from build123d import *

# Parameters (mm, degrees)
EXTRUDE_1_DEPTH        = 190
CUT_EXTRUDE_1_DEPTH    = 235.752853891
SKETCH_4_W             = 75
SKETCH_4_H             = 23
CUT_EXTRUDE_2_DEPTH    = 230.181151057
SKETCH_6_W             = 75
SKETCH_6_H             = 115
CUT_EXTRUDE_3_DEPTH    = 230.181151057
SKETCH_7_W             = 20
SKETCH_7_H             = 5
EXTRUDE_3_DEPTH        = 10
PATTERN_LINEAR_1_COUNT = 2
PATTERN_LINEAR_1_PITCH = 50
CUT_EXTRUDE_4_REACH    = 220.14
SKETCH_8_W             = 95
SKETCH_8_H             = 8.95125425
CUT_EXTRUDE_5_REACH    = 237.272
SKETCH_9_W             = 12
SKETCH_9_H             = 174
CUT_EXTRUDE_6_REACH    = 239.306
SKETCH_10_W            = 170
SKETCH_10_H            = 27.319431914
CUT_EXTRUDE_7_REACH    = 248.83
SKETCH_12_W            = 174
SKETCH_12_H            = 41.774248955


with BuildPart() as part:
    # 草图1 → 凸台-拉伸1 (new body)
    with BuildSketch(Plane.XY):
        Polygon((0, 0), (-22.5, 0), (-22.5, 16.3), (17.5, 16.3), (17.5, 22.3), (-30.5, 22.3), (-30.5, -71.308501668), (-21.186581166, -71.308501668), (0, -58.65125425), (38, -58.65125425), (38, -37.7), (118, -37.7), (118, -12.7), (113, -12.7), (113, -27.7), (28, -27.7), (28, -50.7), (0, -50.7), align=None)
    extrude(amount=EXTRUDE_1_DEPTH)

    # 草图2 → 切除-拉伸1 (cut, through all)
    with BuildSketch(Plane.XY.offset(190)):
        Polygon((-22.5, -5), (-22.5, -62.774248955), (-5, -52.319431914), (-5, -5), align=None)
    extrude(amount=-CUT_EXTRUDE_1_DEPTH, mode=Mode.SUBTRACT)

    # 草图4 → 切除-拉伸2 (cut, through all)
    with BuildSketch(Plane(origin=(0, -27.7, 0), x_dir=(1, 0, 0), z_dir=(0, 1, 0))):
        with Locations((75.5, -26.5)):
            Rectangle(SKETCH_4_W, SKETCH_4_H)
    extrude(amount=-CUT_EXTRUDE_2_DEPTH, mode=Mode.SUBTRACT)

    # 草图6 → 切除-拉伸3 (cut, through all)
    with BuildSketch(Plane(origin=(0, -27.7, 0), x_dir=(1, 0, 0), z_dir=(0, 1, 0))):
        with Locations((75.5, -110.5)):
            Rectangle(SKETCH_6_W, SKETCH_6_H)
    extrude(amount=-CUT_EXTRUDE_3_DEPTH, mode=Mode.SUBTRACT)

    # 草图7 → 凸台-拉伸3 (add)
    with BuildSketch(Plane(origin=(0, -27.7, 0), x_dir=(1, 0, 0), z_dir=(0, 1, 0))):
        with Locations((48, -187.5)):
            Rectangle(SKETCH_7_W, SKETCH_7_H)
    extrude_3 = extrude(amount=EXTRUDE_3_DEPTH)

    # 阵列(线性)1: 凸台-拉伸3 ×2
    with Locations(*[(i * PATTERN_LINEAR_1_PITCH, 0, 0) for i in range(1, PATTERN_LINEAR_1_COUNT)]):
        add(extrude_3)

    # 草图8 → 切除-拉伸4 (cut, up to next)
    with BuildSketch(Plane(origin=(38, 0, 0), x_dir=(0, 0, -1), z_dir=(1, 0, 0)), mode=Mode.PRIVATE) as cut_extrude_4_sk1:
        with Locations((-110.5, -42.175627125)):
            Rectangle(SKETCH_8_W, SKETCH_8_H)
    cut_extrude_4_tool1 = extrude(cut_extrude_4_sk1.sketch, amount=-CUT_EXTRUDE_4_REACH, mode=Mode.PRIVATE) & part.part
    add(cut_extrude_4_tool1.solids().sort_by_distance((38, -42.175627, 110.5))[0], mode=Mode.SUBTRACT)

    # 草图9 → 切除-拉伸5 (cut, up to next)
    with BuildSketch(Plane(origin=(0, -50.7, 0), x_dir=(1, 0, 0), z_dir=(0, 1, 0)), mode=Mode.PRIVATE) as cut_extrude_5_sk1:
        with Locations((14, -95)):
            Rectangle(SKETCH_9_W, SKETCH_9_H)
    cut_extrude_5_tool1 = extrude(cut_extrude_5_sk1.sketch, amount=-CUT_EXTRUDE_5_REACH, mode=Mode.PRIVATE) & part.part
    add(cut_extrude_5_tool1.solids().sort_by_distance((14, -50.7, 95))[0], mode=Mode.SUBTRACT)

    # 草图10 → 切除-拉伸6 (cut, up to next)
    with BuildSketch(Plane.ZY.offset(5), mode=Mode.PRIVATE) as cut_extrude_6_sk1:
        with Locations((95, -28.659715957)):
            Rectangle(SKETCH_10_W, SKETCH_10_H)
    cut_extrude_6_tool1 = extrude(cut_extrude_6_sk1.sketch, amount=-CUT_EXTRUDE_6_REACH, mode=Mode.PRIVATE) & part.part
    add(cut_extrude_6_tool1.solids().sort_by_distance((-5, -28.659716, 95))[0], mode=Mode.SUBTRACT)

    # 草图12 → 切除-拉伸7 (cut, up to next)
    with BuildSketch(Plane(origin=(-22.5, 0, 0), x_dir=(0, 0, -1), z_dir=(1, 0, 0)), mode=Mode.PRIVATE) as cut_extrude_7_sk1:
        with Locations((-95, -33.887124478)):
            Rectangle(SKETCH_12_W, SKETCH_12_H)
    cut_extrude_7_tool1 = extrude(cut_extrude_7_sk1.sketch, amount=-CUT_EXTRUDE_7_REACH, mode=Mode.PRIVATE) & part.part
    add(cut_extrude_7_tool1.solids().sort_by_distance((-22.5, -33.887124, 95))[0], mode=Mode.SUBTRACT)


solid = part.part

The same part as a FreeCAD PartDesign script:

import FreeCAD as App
import Part
import Sketcher
Q = App.Units.Quantity

doc = App.newDocument("Part")
body = doc.addObject("PartDesign::Body", "Body")

# Sketch on XY plane
sketch1 = body.newObject("Sketcher::SketchObject", "Sketch")
sketch1.AttachmentSupport = (doc.getObject("XY_Plane"), [""])
sketch1.MapMode = "FlatFace"
sketch1.addGeometry(Part.LineSegment(App.Vector(0, 0, 0), App.Vector(-22, 0, 0)), False)
sketch1.addGeometry(Part.LineSegment(App.Vector(-22, 0, 0), App.Vector(-22, 16, 0)), False)
sketch1.addGeometry(Part.LineSegment(App.Vector(-22, 16, 0), App.Vector(18, 16, 0)), False)
sketch1.addGeometry(Part.LineSegment(App.Vector(18, 16, 0), App.Vector(18, 22, 0)), False)
sketch1.addGeometry(Part.LineSegment(App.Vector(18, 22, 0), App.Vector(-30, 22, 0)), False)
sketch1.addGeometry(Part.LineSegment(App.Vector(-30, 22, 0), App.Vector(-30, -71, 0)), False)
sketch1.addGeometry(Part.LineSegment(App.Vector(-30, -71, 0), App.Vector(-21, -71, 0)), False)
sketch1.addGeometry(Part.LineSegment(App.Vector(-21, -71, 0), App.Vector(0, -59, 0)), False)
sketch1.addGeometry(Part.LineSegment(App.Vector(0, -59, 0), App.Vector(38, -59, 0)), False)
sketch1.addGeometry(Part.LineSegment(App.Vector(38, -59, 0), App.Vector(38, -38, 0)), False)
sketch1.addGeometry(Part.LineSegment(App.Vector(38, -38, 0), App.Vector(118, -38, 0)), False)
sketch1.addGeometry(Part.LineSegment(App.Vector(118, -38, 0), App.Vector(118, -13, 0)), False)
sketch1.addGeometry(Part.LineSegment(App.Vector(118, -13, 0), App.Vector(113, -13, 0)), False)
sketch1.addGeometry(Part.LineSegment(App.Vector(113, -13, 0), App.Vector(113, -28, 0)), False)
sketch1.addGeometry(Part.LineSegment(App.Vector(113, -28, 0), App.Vector(28, -28, 0)), False)
sketch1.addGeometry(Part.LineSegment(App.Vector(28, -28, 0), App.Vector(28, -51, 0)), False)
sketch1.addGeometry(Part.LineSegment(App.Vector(28, -51, 0), App.Vector(0, -51, 0)), False)
sketch1.addGeometry(Part.LineSegment(App.Vector(0, -51, 0), App.Vector(0, 0, 0)), False)
sketch1.addConstraint(Sketcher.Constraint("Coincident", 0, 2, 1, 1))
sketch1.addConstraint(Sketcher.Constraint("Coincident", 1, 2, 2, 1))
sketch1.addConstraint(Sketcher.Constraint("Coincident", 2, 2, 3, 1))
sketch1.addConstraint(Sketcher.Constraint("Coincident", 3, 2, 4, 1))
sketch1.addConstraint(Sketcher.Constraint("Coincident", 4, 2, 5, 1))
sketch1.addConstraint(Sketcher.Constraint("Coincident", 5, 2, 6, 1))
sketch1.addConstraint(Sketcher.Constraint("Coincident", 6, 2, 7, 1))
sketch1.addConstraint(Sketcher.Constraint("Coincident", 7, 2, 8, 1))
sketch1.addConstraint(Sketcher.Constraint("Coincident", 8, 2, 9, 1))
sketch1.addConstraint(Sketcher.Constraint("Coincident", 9, 2, 10, 1))
sketch1.addConstraint(Sketcher.Constraint("Coincident", 10, 2, 11, 1))
sketch1.addConstraint(Sketcher.Constraint("Coincident", 11, 2, 12, 1))
sketch1.addConstraint(Sketcher.Constraint("Coincident", 12, 2, 13, 1))
sketch1.addConstraint(Sketcher.Constraint("Coincident", 13, 2, 14, 1))
sketch1.addConstraint(Sketcher.Constraint("Coincident", 14, 2, 15, 1))
sketch1.addConstraint(Sketcher.Constraint("Coincident", 15, 2, 16, 1))
sketch1.addConstraint(Sketcher.Constraint("Coincident", 16, 2, 17, 1))
sketch1.addConstraint(Sketcher.Constraint("Coincident", 17, 2, 0, 1))
sketch1.addConstraint(Sketcher.Constraint("Horizontal", 0))
sketch1.addConstraint(Sketcher.Constraint("Vertical", 1))
sketch1.addConstraint(Sketcher.Constraint("Horizontal", 2))
sketch1.addConstraint(Sketcher.Constraint("Vertical", 3))
sketch1.addConstraint(Sketcher.Constraint("Horizontal", 4))
sketch1.addConstraint(Sketcher.Constraint("Vertical", 5))
sketch1.addConstraint(Sketcher.Constraint("Horizontal", 6))
sketch1.addConstraint(Sketcher.Constraint("Horizontal", 8))
sketch1.addConstraint(Sketcher.Constraint("Vertical", 9))
sketch1.addConstraint(Sketcher.Constraint("Horizontal", 10))
sketch1.addConstraint(Sketcher.Constraint("Vertical", 11))
sketch1.addConstraint(Sketcher.Constraint("Horizontal", 12))
sketch1.addConstraint(Sketcher.Constraint("Vertical", 13))
sketch1.addConstraint(Sketcher.Constraint("Horizontal", 14))
sketch1.addConstraint(Sketcher.Constraint("Vertical", 15))
sketch1.addConstraint(Sketcher.Constraint("Horizontal", 16))
sketch1.addConstraint(Sketcher.Constraint("Vertical", 17))
sketch1.addConstraint(Sketcher.Constraint("Coincident", 17, 2, -1, 1))
sketch1.addConstraint(Sketcher.Constraint("PointOnObject", 7, 2, -2))
sketch1.addConstraint(Sketcher.Constraint("DistanceX", 2, 1, 2, 2, Q("40 mm")))
sketch1.addConstraint(Sketcher.Constraint("DistanceX", 4, 2, 4, 1, Q("48 mm")))
sketch1.addConstraint(Sketcher.Constraint("DistanceX", 8, 1, 8, 2, Q("38 mm")))
sketch1.addConstraint(Sketcher.Constraint("DistanceX", 10, 1, 10, 2, Q("80 mm")))
sketch1.addConstraint(Sketcher.Constraint("DistanceX", 12, 2, 12, 1, Q("5 mm")))
sketch1.addConstraint(Sketcher.Constraint("DistanceX", 14, 2, 14, 1, Q("85 mm")))
sketch1.addConstraint(Sketcher.Constraint("DistanceY", 3, 1, 3, 2, Q("6 mm")))
sketch1.addConstraint(Sketcher.Constraint("DistanceY", 11, 1, 11, 2, Q("25 mm")))
sketch1.addConstraint(Sketcher.Constraint("DistanceY", 13, 2, 13, 1, Q("15 mm")))
sketch1.addConstraint(Sketcher.Constraint("DistanceY", 15, 2, 15, 1, Q("23 mm")))
sketch1.addConstraint(Sketcher.Constraint("DistanceX", 0, 2, 0, 1, Q("22.5 mm")))
sketch1.addConstraint(Sketcher.Constraint("DistanceY", 1, 1, 1, 2, Q("16.3 mm")))
sketch1.addConstraint(Sketcher.Constraint("DistanceY", 17, 1, 17, 2, Q("50.7 mm")))
sketch1.addConstraint(Sketcher.Constraint("DistanceY", 5, 2, 5, 1, Q("93.608502 mm")))
sketch1.addConstraint(Sketcher.Constraint("DistanceX", 6, 1, 6, 2, Q("9.313419 mm")))
sketch1.addConstraint(Sketcher.Constraint("Distance", 7, Q("24.679488 mm")))
pad1 = body.newObject("PartDesign::Pad", "Pad")
pad1.Profile = sketch1
pad1.Length = 190

# Sketch on XY plane
sketch2 = body.newObject("Sketcher::SketchObject", "Sketch001")
sketch2.AttachmentSupport = (doc.getObject("XY_Plane"), [""])
sketch2.MapMode = "FlatFace"
sketch2.AttachmentOffset = App.Placement(App.Vector(0, 0, 190), App.Rotation())
sketch2.addGeometry(Part.LineSegment(App.Vector(-22, -5, 0), App.Vector(-22, -63, 0)), False)
sketch2.addGeometry(Part.LineSegment(App.Vector(-22, -63, 0), App.Vector(-5, -52, 0)), False)
sketch2.addGeometry(Part.LineSegment(App.Vector(-5, -52, 0), App.Vector(-5, -5, 0)), False)
sketch2.addGeometry(Part.LineSegment(App.Vector(-5, -5, 0), App.Vector(-22, -5, 0)), False)
sketch2.addConstraint(Sketcher.Constraint("Coincident", 0, 2, 1, 1))
sketch2.addConstraint(Sketcher.Constraint("Coincident", 1, 2, 2, 1))
sketch2.addConstraint(Sketcher.Constraint("Coincident", 2, 2, 3, 1))
sketch2.addConstraint(Sketcher.Constraint("Coincident", 3, 2, 0, 1))
sketch2.addConstraint(Sketcher.Constraint("Vertical", 0))
sketch2.addConstraint(Sketcher.Constraint("Vertical", 2))
sketch2.addConstraint(Sketcher.Constraint("Horizontal", 3))
sketch2.addConstraint(Sketcher.Constraint("DistanceX", 3, 2, 3, 1, Q("17.5 mm")))
sketch2.addConstraint(Sketcher.Constraint("DistanceX", 1, 2, -1, 1, Q("5 mm")))
sketch2.addConstraint(Sketcher.Constraint("DistanceY", 2, 2, -1, 1, Q("5 mm")))
sketch2.addConstraint(Sketcher.Constraint("DistanceY", 0, 2, 0, 1, Q("57.774249 mm")))
sketch2.addConstraint(Sketcher.Constraint("DistanceY", 2, 1, 2, 2, Q("47.319432 mm")))
pocket1 = body.newObject("PartDesign::Pocket", "Pocket")
pocket1.Profile = sketch2
pocket1.Type = "ThroughAll"

# Sketch on XZ plane
sketch3 = body.newObject("Sketcher::SketchObject", "Sketch002")
sketch3.AttachmentSupport = (doc.getObject("XZ_Plane"), [""])
sketch3.MapMode = "FlatFace"
sketch3.AttachmentOffset = App.Placement(App.Vector(0, 0, 27.7), App.Rotation())
sketch3.addGeometry(Part.LineSegment(App.Vector(38, 15, 0), App.Vector(38, 38, 0)), False)
sketch3.addGeometry(Part.LineSegment(App.Vector(38, 38, 0), App.Vector(113, 38, 0)), False)
sketch3.addGeometry(Part.LineSegment(App.Vector(113, 38, 0), App.Vector(113, 15, 0)), False)
sketch3.addGeometry(Part.LineSegment(App.Vector(113, 15, 0), App.Vector(38, 15, 0)), False)
sketch3.addConstraint(Sketcher.Constraint("Coincident", 0, 2, 1, 1))
sketch3.addConstraint(Sketcher.Constraint("Coincident", 1, 2, 2, 1))
sketch3.addConstraint(Sketcher.Constraint("Coincident", 2, 2, 3, 1))
sketch3.addConstraint(Sketcher.Constraint("Coincident", 3, 2, 0, 1))
sketch3.addConstraint(Sketcher.Constraint("Vertical", 0))
sketch3.addConstraint(Sketcher.Constraint("Horizontal", 1))
sketch3.addConstraint(Sketcher.Constraint("Vertical", 2))
sketch3.addConstraint(Sketcher.Constraint("Horizontal", 3))
sketch3.addConstraint(Sketcher.Constraint("DistanceX", 1, 1, 1, 2, Q("75 mm")))
sketch3.addConstraint(Sketcher.Constraint("DistanceY", 0, 1, 0, 2, Q("23 mm")))
sketch3.addConstraint(Sketcher.Constraint("DistanceX", -1, 1, 0, 2, Q("38 mm")))
sketch3.addConstraint(Sketcher.Constraint("DistanceY", -1, 1, 0, 2, Q("38 mm")))
pocket2 = body.newObject("PartDesign::Pocket", "Pocket001")
pocket2.Profile = sketch3
pocket2.Type = "ThroughAll"
pocket2.Reversed = True

# Sketch on XZ plane
sketch4 = body.newObject("Sketcher::SketchObject", "Sketch003")
sketch4.AttachmentSupport = (doc.getObject("XZ_Plane"), [""])
sketch4.MapMode = "FlatFace"
sketch4.AttachmentOffset = App.Placement(App.Vector(0, 0, 27.7), App.Rotation())
sketch4.addGeometry(Part.LineSegment(App.Vector(38, 53, 0), App.Vector(38, 168, 0)), False)
sketch4.addGeometry(Part.LineSegment(App.Vector(38, 168, 0), App.Vector(113, 168, 0)), False)
sketch4.addGeometry(Part.LineSegment(App.Vector(113, 168, 0), App.Vector(113, 53, 0)), False)
sketch4.addGeometry(Part.LineSegment(App.Vector(113, 53, 0), App.Vector(38, 53, 0)), False)
sketch4.addConstraint(Sketcher.Constraint("Coincident", 0, 2, 1, 1))
sketch4.addConstraint(Sketcher.Constraint("Coincident", 1, 2, 2, 1))
sketch4.addConstraint(Sketcher.Constraint("Coincident", 2, 2, 3, 1))
sketch4.addConstraint(Sketcher.Constraint("Coincident", 3, 2, 0, 1))
sketch4.addConstraint(Sketcher.Constraint("Vertical", 0))
sketch4.addConstraint(Sketcher.Constraint("Horizontal", 1))
sketch4.addConstraint(Sketcher.Constraint("Vertical", 2))
sketch4.addConstraint(Sketcher.Constraint("Horizontal", 3))
sketch4.addConstraint(Sketcher.Constraint("DistanceX", 1, 1, 1, 2, Q("75 mm")))
sketch4.addConstraint(Sketcher.Constraint("DistanceY", 0, 1, 0, 2, Q("115 mm")))
sketch4.addConstraint(Sketcher.Constraint("DistanceX", -1, 1, 0, 2, Q("38 mm")))
sketch4.addConstraint(Sketcher.Constraint("DistanceY", -1, 1, 0, 2, Q("168 mm")))
pocket3 = body.newObject("PartDesign::Pocket", "Pocket002")
pocket3.Profile = sketch4
pocket3.Type = "ThroughAll"
pocket3.Reversed = True

# Sketch on XZ plane
sketch5 = body.newObject("Sketcher::SketchObject", "Sketch004")
sketch5.AttachmentSupport = (doc.getObject("XZ_Plane"), [""])
sketch5.MapMode = "FlatFace"
sketch5.AttachmentOffset = App.Placement(App.Vector(0, 0, 27.7), App.Rotation())
sketch5.addGeometry(Part.LineSegment(App.Vector(38, 185, 0), App.Vector(38, 190, 0)), False)
sketch5.addGeometry(Part.LineSegment(App.Vector(38, 190, 0), App.Vector(58, 190, 0)), False)
sketch5.addGeometry(Part.LineSegment(App.Vector(58, 190, 0), App.Vector(58, 185, 0)), False)
sketch5.addGeometry(Part.LineSegment(App.Vector(58, 185, 0), App.Vector(38, 185, 0)), False)
sketch5.addConstraint(Sketcher.Constraint("Coincident", 0, 2, 1, 1))
sketch5.addConstraint(Sketcher.Constraint("Coincident", 1, 2, 2, 1))
sketch5.addConstraint(Sketcher.Constraint("Coincident", 2, 2, 3, 1))
sketch5.addConstraint(Sketcher.Constraint("Coincident", 3, 2, 0, 1))
sketch5.addConstraint(Sketcher.Constraint("Vertical", 0))
sketch5.addConstraint(Sketcher.Constraint("Horizontal", 1))
sketch5.addConstraint(Sketcher.Constraint("Vertical", 2))
sketch5.addConstraint(Sketcher.Constraint("Horizontal", 3))
sketch5.addConstraint(Sketcher.Constraint("DistanceX", 1, 1, 1, 2, Q("20 mm")))
sketch5.addConstraint(Sketcher.Constraint("DistanceY", 0, 1, 0, 2, Q("5 mm")))
sketch5.addConstraint(Sketcher.Constraint("DistanceX", -1, 1, 0, 2, Q("38 mm")))
sketch5.addConstraint(Sketcher.Constraint("DistanceY", -1, 1, 0, 2, Q("190 mm")))
pad2 = body.newObject("PartDesign::Pad", "Pad001")
pad2.Profile = sketch5
pad2.Length = 10
pad2.Reversed = True
doc.recompute()

linearpattern = body.newObject("PartDesign::LinearPattern", "LinearPattern")
linearpattern.Originals = [pad2]
linearpattern.Direction = (doc.getObject("X_Axis"), [""])
linearpattern.Mode = "offset"
linearpattern.Offset = 50
linearpattern.Occurrences = 2
body.Tip = linearpattern

# Sketch on YZ plane
sketch6 = body.newObject("Sketcher::SketchObject", "Sketch005")
sketch6.AttachmentSupport = (doc.getObject("YZ_Plane"), [""])
sketch6.MapMode = "FlatFace"
sketch6.AttachmentOffset = App.Placement(App.Vector(0, 0, 38), App.Rotation())
sketch6.addGeometry(Part.LineSegment(App.Vector(-38, 158, 0), App.Vector(-47, 158, 0)), False)
sketch6.addGeometry(Part.LineSegment(App.Vector(-47, 158, 0), App.Vector(-47, 63, 0)), False)
sketch6.addGeometry(Part.LineSegment(App.Vector(-47, 63, 0), App.Vector(-38, 63, 0)), False)
sketch6.addGeometry(Part.LineSegment(App.Vector(-38, 63, 0), App.Vector(-38, 158, 0)), False)
sketch6.addConstraint(Sketcher.Constraint("Coincident", 0, 2, 1, 1))
sketch6.addConstraint(Sketcher.Constraint("Coincident", 1, 2, 2, 1))
sketch6.addConstraint(Sketcher.Constraint("Coincident", 2, 2, 3, 1))
sketch6.addConstraint(Sketcher.Constraint("Coincident", 3, 2, 0, 1))
sketch6.addConstraint(Sketcher.Constraint("Horizontal", 0))
sketch6.addConstraint(Sketcher.Constraint("Vertical", 1))
sketch6.addConstraint(Sketcher.Constraint("Horizontal", 2))
sketch6.addConstraint(Sketcher.Constraint("Vertical", 3))
sketch6.addConstraint(Sketcher.Constraint("DistanceY", 1, 2, 1, 1, Q("95 mm")))
sketch6.addConstraint(Sketcher.Constraint("DistanceY", -1, 1, 0, 2, Q("158 mm")))
sketch6.addConstraint(Sketcher.Constraint("DistanceX", 2, 2, -1, 1, Q("37.7 mm")))
sketch6.addConstraint(Sketcher.Constraint("DistanceX", 0, 2, 0, 1, Q("8.951254 mm")))
pocket4 = body.newObject("PartDesign::Pocket", "Pocket003")
pocket4.Profile = sketch6
pocket4.Type = "UpToFirst"

# Sketch on XZ plane
sketch7 = body.newObject("Sketcher::SketchObject", "Sketch006")
sketch7.AttachmentSupport = (doc.getObject("XZ_Plane"), [""])
sketch7.MapMode = "FlatFace"
sketch7.AttachmentOffset = App.Placement(App.Vector(0, 0, 50.7), App.Rotation())
sketch7.addGeometry(Part.LineSegment(App.Vector(8, 8, 0), App.Vector(8, 182, 0)), False)
sketch7.addGeometry(Part.LineSegment(App.Vector(8, 182, 0), App.Vector(20, 182, 0)), False)
sketch7.addGeometry(Part.LineSegment(App.Vector(20, 182, 0), App.Vector(20, 8, 0)), False)
sketch7.addGeometry(Part.LineSegment(App.Vector(20, 8, 0), App.Vector(8, 8, 0)), False)
sketch7.addConstraint(Sketcher.Constraint("Coincident", 0, 2, 1, 1))
sketch7.addConstraint(Sketcher.Constraint("Coincident", 1, 2, 2, 1))
sketch7.addConstraint(Sketcher.Constraint("Coincident", 2, 2, 3, 1))
sketch7.addConstraint(Sketcher.Constraint("Coincident", 3, 2, 0, 1))
sketch7.addConstraint(Sketcher.Constraint("Vertical", 0))
sketch7.addConstraint(Sketcher.Constraint("Horizontal", 1))
sketch7.addConstraint(Sketcher.Constraint("Vertical", 2))
sketch7.addConstraint(Sketcher.Constraint("Horizontal", 3))
sketch7.addConstraint(Sketcher.Constraint("DistanceX", 1, 1, 1, 2, Q("12 mm")))
sketch7.addConstraint(Sketcher.Constraint("DistanceY", 0, 1, 0, 2, Q("174 mm")))
sketch7.addConstraint(Sketcher.Constraint("DistanceX", -1, 1, 0, 2, Q("8 mm")))
sketch7.addConstraint(Sketcher.Constraint("DistanceY", -1, 1, 0, 2, Q("182 mm")))
pocket5 = body.newObject("PartDesign::Pocket", "Pocket004")
pocket5.Profile = sketch7
pocket5.Type = "UpToFirst"
pocket5.Reversed = True

# Sketch on YZ plane
sketch8 = body.newObject("Sketcher::SketchObject", "Sketch007")
sketch8.AttachmentSupport = (doc.getObject("YZ_Plane"), [""])
sketch8.MapMode = "FlatFace"
sketch8.AttachmentOffset = App.Placement(App.Vector(0, 0, -5), App.Rotation())
sketch8.addGeometry(Part.LineSegment(App.Vector(-15, 10, 0), App.Vector(-42, 10, 0)), False)
sketch8.addGeometry(Part.LineSegment(App.Vector(-42, 10, 0), App.Vector(-42, 180, 0)), False)
sketch8.addGeometry(Part.LineSegment(App.Vector(-42, 180, 0), App.Vector(-15, 180, 0)), False)
sketch8.addGeometry(Part.LineSegment(App.Vector(-15, 180, 0), App.Vector(-15, 10, 0)), False)
sketch8.addConstraint(Sketcher.Constraint("Coincident", 0, 2, 1, 1))
sketch8.addConstraint(Sketcher.Constraint("Coincident", 1, 2, 2, 1))
sketch8.addConstraint(Sketcher.Constraint("Coincident", 2, 2, 3, 1))
sketch8.addConstraint(Sketcher.Constraint("Coincident", 3, 2, 0, 1))
sketch8.addConstraint(Sketcher.Constraint("Horizontal", 0))
sketch8.addConstraint(Sketcher.Constraint("Vertical", 1))
sketch8.addConstraint(Sketcher.Constraint("Horizontal", 2))
sketch8.addConstraint(Sketcher.Constraint("Vertical", 3))
sketch8.addConstraint(Sketcher.Constraint("DistanceY", 1, 1, 1, 2, Q("170 mm")))
sketch8.addConstraint(Sketcher.Constraint("DistanceY", -1, 1, 0, 2, Q("10 mm")))
sketch8.addConstraint(Sketcher.Constraint("DistanceX", 2, 2, -1, 1, Q("15 mm")))
sketch8.addConstraint(Sketcher.Constraint("DistanceX", 0, 2, 0, 1, Q("27.319432 mm")))
pocket6 = body.newObject("PartDesign::Pocket", "Pocket005")
pocket6.Profile = sketch8
pocket6.Type = "UpToFirst"
pocket6.Reversed = True

# Sketch on YZ plane
sketch9 = body.newObject("Sketcher::SketchObject", "Sketch008")
sketch9.AttachmentSupport = (doc.getObject("YZ_Plane"), [""])
sketch9.MapMode = "FlatFace"
sketch9.AttachmentOffset = App.Placement(App.Vector(0, 0, -22.5), App.Rotation())
sketch9.addGeometry(Part.LineSegment(App.Vector(-13, 182, 0), App.Vector(-55, 182, 0)), False)
sketch9.addGeometry(Part.LineSegment(App.Vector(-55, 182, 0), App.Vector(-55, 8, 0)), False)
sketch9.addGeometry(Part.LineSegment(App.Vector(-55, 8, 0), App.Vector(-13, 8, 0)), False)
sketch9.addGeometry(Part.LineSegment(App.Vector(-13, 8, 0), App.Vector(-13, 182, 0)), False)
sketch9.addConstraint(Sketcher.Constraint("Coincident", 0, 2, 1, 1))
sketch9.addConstraint(Sketcher.Constraint("Coincident", 1, 2, 2, 1))
sketch9.addConstraint(Sketcher.Constraint("Coincident", 2, 2, 3, 1))
sketch9.addConstraint(Sketcher.Constraint("Coincident", 3, 2, 0, 1))
sketch9.addConstraint(Sketcher.Constraint("Horizontal", 0))
sketch9.addConstraint(Sketcher.Constraint("Vertical", 1))
sketch9.addConstraint(Sketcher.Constraint("Horizontal", 2))
sketch9.addConstraint(Sketcher.Constraint("Vertical", 3))
sketch9.addConstraint(Sketcher.Constraint("DistanceY", 1, 2, 1, 1, Q("174 mm")))
sketch9.addConstraint(Sketcher.Constraint("DistanceY", -1, 1, 0, 2, Q("182 mm")))
sketch9.addConstraint(Sketcher.Constraint("DistanceX", 2, 2, -1, 1, Q("13 mm")))
sketch9.addConstraint(Sketcher.Constraint("DistanceX", 0, 2, 0, 1, Q("41.774249 mm")))
pocket7 = body.newObject("PartDesign::Pocket", "Pocket006")
pocket7.Profile = sketch9
pocket7.Type = "UpToFirst"

doc.recompute()
